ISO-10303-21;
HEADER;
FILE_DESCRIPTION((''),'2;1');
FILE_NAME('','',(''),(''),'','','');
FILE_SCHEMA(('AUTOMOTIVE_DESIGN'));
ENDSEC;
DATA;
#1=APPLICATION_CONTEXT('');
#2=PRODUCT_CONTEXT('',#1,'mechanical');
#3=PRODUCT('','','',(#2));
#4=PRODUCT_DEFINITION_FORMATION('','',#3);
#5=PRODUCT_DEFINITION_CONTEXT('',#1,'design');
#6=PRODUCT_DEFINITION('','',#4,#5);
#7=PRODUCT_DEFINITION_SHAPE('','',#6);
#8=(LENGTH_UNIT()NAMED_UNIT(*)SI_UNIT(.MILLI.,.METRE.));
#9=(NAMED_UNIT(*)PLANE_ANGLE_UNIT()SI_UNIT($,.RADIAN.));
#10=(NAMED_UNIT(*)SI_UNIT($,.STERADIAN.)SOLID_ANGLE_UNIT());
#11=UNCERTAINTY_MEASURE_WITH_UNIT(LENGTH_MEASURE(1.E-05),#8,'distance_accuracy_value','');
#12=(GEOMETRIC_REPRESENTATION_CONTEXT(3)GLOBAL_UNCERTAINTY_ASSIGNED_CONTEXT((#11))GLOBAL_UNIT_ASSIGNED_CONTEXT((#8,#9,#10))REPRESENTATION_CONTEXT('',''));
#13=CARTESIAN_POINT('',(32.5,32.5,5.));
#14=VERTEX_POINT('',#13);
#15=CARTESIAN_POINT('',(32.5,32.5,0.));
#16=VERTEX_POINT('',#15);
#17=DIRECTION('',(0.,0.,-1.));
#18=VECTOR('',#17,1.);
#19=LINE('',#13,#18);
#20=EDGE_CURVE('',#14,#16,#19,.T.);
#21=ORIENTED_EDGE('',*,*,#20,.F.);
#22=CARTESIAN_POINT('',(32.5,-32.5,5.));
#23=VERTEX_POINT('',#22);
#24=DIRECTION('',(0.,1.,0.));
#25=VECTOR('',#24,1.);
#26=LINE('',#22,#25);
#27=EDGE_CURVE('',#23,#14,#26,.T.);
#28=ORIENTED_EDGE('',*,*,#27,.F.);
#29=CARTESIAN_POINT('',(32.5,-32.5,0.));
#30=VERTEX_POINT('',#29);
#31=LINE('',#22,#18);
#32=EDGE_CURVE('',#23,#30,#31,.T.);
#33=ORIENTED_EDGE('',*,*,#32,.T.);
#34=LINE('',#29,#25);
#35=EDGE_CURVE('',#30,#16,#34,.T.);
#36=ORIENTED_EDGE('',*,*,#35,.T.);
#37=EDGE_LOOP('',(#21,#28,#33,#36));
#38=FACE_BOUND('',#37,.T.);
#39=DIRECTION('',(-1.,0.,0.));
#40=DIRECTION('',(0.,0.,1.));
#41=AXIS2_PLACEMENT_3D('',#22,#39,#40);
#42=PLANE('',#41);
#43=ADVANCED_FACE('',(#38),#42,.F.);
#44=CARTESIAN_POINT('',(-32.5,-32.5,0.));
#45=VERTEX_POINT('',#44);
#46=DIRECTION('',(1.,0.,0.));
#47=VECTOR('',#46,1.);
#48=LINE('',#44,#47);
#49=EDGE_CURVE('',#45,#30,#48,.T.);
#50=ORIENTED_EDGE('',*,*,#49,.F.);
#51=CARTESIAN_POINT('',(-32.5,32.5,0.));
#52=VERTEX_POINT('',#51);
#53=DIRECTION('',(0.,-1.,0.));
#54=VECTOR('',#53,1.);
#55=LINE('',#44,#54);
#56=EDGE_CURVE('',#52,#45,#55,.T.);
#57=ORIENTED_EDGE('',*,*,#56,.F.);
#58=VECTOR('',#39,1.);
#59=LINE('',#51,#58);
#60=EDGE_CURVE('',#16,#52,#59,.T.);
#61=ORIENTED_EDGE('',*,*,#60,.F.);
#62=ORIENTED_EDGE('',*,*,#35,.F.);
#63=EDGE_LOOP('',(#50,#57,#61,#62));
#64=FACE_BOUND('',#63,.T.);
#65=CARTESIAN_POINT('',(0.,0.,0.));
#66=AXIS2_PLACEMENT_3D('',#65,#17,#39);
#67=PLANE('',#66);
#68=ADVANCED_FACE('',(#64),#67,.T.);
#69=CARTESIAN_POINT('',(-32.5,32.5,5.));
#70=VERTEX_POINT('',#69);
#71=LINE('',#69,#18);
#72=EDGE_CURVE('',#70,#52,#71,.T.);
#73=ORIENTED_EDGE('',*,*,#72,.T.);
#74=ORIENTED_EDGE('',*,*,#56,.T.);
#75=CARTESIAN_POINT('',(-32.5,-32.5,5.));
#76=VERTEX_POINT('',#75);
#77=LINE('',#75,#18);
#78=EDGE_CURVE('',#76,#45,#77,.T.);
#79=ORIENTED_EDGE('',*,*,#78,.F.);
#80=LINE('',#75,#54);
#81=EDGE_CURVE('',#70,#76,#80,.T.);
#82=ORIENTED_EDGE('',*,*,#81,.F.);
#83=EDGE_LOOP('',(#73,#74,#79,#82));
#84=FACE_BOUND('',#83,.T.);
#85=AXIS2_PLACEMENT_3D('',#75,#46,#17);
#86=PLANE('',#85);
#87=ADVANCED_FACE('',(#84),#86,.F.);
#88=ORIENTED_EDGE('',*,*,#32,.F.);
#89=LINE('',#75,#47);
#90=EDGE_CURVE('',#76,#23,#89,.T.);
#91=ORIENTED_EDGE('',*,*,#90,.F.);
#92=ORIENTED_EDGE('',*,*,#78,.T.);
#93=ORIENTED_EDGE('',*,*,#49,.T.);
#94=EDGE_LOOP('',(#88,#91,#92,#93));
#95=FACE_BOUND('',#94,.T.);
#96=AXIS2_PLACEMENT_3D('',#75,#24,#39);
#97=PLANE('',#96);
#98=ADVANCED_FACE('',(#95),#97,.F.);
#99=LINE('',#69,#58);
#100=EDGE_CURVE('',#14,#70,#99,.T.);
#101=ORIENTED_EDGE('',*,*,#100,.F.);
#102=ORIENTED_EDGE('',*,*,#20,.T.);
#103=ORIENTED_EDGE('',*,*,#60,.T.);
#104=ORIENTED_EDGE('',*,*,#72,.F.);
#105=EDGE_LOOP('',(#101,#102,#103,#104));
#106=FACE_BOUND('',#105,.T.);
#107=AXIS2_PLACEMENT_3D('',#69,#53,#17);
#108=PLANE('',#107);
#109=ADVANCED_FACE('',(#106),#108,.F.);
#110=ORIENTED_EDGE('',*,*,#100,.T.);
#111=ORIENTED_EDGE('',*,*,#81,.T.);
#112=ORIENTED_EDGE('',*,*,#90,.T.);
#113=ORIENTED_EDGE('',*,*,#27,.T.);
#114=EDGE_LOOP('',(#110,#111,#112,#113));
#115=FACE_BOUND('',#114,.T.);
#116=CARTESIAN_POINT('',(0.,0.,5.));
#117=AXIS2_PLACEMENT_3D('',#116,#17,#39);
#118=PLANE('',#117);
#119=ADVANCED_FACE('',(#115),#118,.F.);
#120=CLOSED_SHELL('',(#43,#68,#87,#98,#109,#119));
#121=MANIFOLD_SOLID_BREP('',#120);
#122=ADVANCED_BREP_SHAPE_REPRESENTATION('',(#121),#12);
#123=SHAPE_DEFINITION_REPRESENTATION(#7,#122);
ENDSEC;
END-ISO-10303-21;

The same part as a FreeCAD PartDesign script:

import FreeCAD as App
import Part
import Sketcher

V = App.Vector


def add_polygon(sketch, points):
    """Adds a closed chain of lines whose ends are joined by coincident constraints."""
    first, n = sketch.GeometryCount, len(points)
    for a, b in zip(points, points[1:] + points[:1]):
        sketch.addGeometry(Part.LineSegment(App.Vector(*a, 0), App.Vector(*b, 0)), False)
    for i in range(n):
        sketch.addConstraint(Sketcher.Constraint("Coincident", first + i, 2, first + (i + 1) % n, 1))

doc = App.newDocument("Part")
params = doc.addObject("Spreadsheet::Sheet", "Params")
for row, (alias, value) in enumerate([
    ("sketch1_width", "65 mm"),
    ("pad1_length", "5 mm"),
], start=1):
    params.set(f"A{row}", alias)
    params.set(f"B{row}", "=" + value)
    params.setAlias(f"B{row}", alias)

body = doc.addObject("PartDesign::Body", "Body")

# Sketch on XY plane
sketch1 = doc.addObject("Sketcher::SketchObject", "Sketch")
body.addObject(sketch1)
sketch1.AttachmentSupport = (doc.XY_Plane, [""])
sketch1.MapMode = "FlatFace"
add_polygon(sketch1, [(-32, 32), (-32, -32), (32, -32), (32, 32)])  # lines 0-3
sketch1.addConstraint([
    Sketcher.Constraint("Vertical", 0),
    Sketcher.Constraint("Horizontal", 1),
    Sketcher.Constraint("Vertical", 2),
    Sketcher.Constraint("Horizontal", 3),
    Sketcher.Constraint("Symmetric", 0, 2, 2, 2, -1, 1),
    Sketcher.Constraint("Equal", 3, 0),
    Sketcher.Constraint("DistanceX", 1, 1, 1, 2, 65.0),
])
sketch1.setExpression("Constraints[10]", "Params.sketch1_width")
pad1 = doc.addObject("PartDesign::Pad", "Pad")
body.addObject(pad1)
pad1.Profile = sketch1
pad1.setExpression("Length", "Params.pad1_length")

doc.recompute()
